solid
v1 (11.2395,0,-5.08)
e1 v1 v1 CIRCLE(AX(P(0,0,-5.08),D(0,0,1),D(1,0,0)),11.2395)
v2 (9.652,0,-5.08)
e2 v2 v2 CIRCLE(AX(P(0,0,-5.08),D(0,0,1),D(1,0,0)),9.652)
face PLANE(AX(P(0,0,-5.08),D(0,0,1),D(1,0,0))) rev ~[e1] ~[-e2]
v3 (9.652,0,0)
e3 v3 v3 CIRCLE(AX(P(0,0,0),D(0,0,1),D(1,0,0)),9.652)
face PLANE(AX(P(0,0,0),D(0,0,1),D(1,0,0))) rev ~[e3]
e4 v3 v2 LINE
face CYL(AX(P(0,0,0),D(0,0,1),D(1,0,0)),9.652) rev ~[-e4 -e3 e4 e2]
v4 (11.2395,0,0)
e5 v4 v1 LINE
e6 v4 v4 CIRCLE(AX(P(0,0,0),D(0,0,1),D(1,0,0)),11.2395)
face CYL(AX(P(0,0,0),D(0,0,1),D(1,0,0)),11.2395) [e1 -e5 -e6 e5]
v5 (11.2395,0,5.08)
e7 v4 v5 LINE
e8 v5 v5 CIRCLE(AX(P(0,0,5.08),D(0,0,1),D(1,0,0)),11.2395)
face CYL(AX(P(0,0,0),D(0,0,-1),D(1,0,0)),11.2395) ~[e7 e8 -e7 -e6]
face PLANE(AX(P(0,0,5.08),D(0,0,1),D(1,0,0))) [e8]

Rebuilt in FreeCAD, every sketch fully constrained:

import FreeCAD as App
import Part
import Sketcher
from FreeCAD import Vector
Q = App.Units.Quantity

doc = App.newDocument("Part")
body = doc.addObject("PartDesign::Body", "Body")

# Sketch on XY plane
sketch1 = body.newObject("Sketcher::SketchObject", "Sketch")
sketch1.AttachmentSupport = (doc.getObject("XY_Plane"), [""])
sketch1.MapMode = "FlatFace"
sketch1.addGeometry(Part.Circle(Vector(0, 0, 0), Vector(0, 0, 1), 11), False)
sketch1.addGeometry(Part.Circle(Vector(0, 0, 0), Vector(0, 0, 1), 10), False)
sketch1.addConstraint(Sketcher.Constraint("Coincident", 0, 3, -1, 1))
sketch1.addConstraint(Sketcher.Constraint("Coincident", 1, 3, -1, 1))
sketch1.addConstraint(Sketcher.Constraint("Diameter", 1, Q("0.76 in")))
sketch1.addConstraint(Sketcher.Constraint("Diameter", 0, Q("0.885 in")))
pad1 = body.newObject("PartDesign::Pad", "Pad")
pad1.Profile = sketch1
pad1.Length = Q("0.2 in")
pad1.Reversed = True

# Sketch on XY plane
sketch2 = body.newObject("Sketcher::SketchObject", "Sketch001")
sketch2.AttachmentSupport = (doc.getObject("XY_Plane"), [""])
sketch2.MapMode = "FlatFace"
sketch2.addGeometry(Part.Circle(Vector(0, 0, 0), Vector(0, 0, 1), 11), False)
sketch2.addConstraint(Sketcher.Constraint("Coincident", 0, 3, -1, 1))
sketch2.addConstraint(Sketcher.Constraint("Diameter", 0, Q("0.885 in")))
pad2 = body.newObject("PartDesign::Pad", "Pad001")
pad2.Profile = sketch2
pad2.Length = Q("0.2 in")

doc.recompute()
